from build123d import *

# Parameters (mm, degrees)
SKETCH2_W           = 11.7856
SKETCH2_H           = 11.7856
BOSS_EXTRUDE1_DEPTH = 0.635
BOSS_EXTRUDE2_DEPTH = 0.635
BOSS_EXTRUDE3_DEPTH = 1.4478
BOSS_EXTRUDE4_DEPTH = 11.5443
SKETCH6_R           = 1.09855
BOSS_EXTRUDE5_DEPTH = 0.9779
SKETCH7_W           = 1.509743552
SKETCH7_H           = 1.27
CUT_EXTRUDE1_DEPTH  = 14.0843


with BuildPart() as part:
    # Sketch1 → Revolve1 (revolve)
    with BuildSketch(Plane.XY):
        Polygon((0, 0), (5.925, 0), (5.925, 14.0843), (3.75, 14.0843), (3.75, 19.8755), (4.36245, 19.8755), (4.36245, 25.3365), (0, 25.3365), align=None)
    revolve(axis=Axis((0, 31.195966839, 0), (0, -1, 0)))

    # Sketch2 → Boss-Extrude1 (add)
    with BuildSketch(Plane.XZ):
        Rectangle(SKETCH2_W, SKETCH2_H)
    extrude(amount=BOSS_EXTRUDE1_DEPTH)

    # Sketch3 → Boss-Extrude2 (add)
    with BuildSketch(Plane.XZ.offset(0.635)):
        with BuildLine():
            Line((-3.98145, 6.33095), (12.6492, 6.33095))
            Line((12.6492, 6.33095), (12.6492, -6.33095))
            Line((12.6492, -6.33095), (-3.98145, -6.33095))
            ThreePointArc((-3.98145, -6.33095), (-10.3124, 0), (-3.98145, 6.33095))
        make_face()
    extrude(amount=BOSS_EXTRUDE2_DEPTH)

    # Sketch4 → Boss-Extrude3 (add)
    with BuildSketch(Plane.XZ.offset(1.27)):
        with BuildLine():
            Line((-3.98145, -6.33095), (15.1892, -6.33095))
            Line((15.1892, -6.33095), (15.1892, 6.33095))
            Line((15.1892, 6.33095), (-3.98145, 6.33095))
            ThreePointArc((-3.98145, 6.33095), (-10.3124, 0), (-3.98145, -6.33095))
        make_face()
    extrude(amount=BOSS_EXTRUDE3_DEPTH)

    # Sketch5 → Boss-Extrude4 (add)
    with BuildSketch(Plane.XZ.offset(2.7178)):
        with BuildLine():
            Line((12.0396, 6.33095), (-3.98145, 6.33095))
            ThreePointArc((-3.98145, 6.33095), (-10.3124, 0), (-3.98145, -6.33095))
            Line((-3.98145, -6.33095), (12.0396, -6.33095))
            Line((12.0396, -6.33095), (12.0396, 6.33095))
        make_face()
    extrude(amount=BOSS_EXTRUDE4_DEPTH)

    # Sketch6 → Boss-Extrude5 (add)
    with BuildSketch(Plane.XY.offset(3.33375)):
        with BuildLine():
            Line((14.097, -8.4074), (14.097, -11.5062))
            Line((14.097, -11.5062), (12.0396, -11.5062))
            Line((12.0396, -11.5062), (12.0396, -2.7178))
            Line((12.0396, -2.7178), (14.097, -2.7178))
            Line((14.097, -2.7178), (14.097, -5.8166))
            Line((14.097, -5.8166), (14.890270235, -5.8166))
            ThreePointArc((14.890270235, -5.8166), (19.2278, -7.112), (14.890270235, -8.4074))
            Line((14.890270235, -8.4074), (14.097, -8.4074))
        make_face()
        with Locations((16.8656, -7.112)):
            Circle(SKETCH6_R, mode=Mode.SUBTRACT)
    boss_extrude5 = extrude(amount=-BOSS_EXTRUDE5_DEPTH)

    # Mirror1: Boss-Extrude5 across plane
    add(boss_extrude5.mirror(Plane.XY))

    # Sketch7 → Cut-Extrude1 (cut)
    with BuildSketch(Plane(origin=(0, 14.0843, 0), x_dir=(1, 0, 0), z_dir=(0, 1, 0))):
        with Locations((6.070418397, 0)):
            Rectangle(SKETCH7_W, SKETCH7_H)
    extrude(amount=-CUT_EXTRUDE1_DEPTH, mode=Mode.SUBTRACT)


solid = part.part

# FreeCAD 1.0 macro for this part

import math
import FreeCAD as App
import Part
import Sketcher
Q = App.Units.Quantity

doc = App.newDocument("Part")
body = doc.addObject("PartDesign::Body", "Body")

# Sketch on XY plane
sketch1 = doc.addObject("Sketcher::SketchObject", "Sketch")
body.addObject(sketch1)
sketch1.AttachmentSupport = (doc.XY_Plane, [""])
sketch1.MapMode = "FlatFace"
sketch1.addGeometry(Part.LineSegment(App.Vector(0, 0, 0), App.Vector(5.9, 0, 0)), False)
sketch1.addGeometry(Part.LineSegment(App.Vector(5.9, 0, 0), App.Vector(5.9, 14.1, 0)), False)
sketch1.addGeometry(Part.LineSegment(App.Vector(5.9, 14.1, 0), App.Vector(3.8, 14.1, 0)), False)
sketch1.addGeometry(Part.LineSegment(App.Vector(3.8, 14.1, 0), App.Vector(3.8, 19.9, 0)), False)
sketch1.addGeometry(Part.LineSegment(App.Vector(3.8, 19.9, 0), App.Vector(4.4, 19.9, 0)), False)
sketch1.addGeometry(Part.LineSegment(App.Vector(4.4, 19.9, 0), App.Vector(4.4, 25.3, 0)), False)
sketch1.addGeometry(Part.LineSegment(App.Vector(4.4, 25.3, 0), App.Vector(0, 25.3, 0)), False)
sketch1.addGeometry(Part.LineSegment(App.Vector(0, 25.3, 0), App.Vector(0, 0, 0)), False)
sketch1.addConstraint(Sketcher.Constraint("Coincident", 0, 2, 1, 1))
sketch1.addConstraint(Sketcher.Constraint("Coincident", 1, 2, 2, 1))
sketch1.addConstraint(Sketcher.Constraint("Coincident", 2, 2, 3, 1))
sketch1.addConstraint(Sketcher.Constraint("Coincident", 3, 2, 4, 1))
sketch1.addConstraint(Sketcher.Constraint("Coincident", 4, 2, 5, 1))
sketch1.addConstraint(Sketcher.Constraint("Coincident", 5, 2, 6, 1))
sketch1.addConstraint(Sketcher.Constraint("Coincident", 6, 2, 7, 1))
sketch1.addConstraint(Sketcher.Constraint("Coincident", 7, 2, 0, 1))
sketch1.addConstraint(Sketcher.Constraint("Horizontal", 0))
sketch1.addConstraint(Sketcher.Constraint("Vertical", 1))
sketch1.addConstraint(Sketcher.Constraint("Horizontal", 2))
sketch1.addConstraint(Sketcher.Constraint("Vertical", 3))
sketch1.addConstraint(Sketcher.Constraint("Horizontal", 4))
sketch1.addConstraint(Sketcher.Constraint("Vertical", 5))
sketch1.addConstraint(Sketcher.Constraint("Horizontal", 6))
sketch1.addConstraint(Sketcher.Constraint("Vertical", 7))
sketch1.addConstraint(Sketcher.Constraint("Coincident", 7, 2, -1, 1))
sketch1.addConstraint(Sketcher.Constraint("DistanceY", 3, 1, 3, 2, Q("0.228 in")))
sketch1.addConstraint(Sketcher.Constraint("DistanceY", 5, 1, 5, 2, Q("0.215 in")))
sketch1.addConstraint(Sketcher.Constraint("DistanceY", 1, 1, 1, 2, Q("0.5545 in")))
sketch1.addConstraint(Sketcher.Constraint("DistanceX", 0, 1, 0, 2, Q("5.925 mm")))
sketch1.addConstraint(Sketcher.Constraint("DistanceX", 2, 2, 2, 1, Q("2.175 mm")))
sketch1.addConstraint(Sketcher.Constraint("DistanceX", 4, 1, 4, 2, Q("0.61245 mm")))
revolution = doc.addObject("PartDesign::Revolution", "Revolution")
body.addObject(revolution)
revolution.Profile = sketch1
revolution.ReferenceAxis = (sketch1, ["V_Axis"])
revolution.Angle = 360

# Sketch on XZ plane
sketch2 = doc.addObject("Sketcher::SketchObject", "Sketch001")
body.addObject(sketch2)
sketch2.AttachmentSupport = (doc.XZ_Plane, [""])
sketch2.MapMode = "FlatFace"
sketch2.addGeometry(Part.LineSegment(App.Vector(-6, 6, 0), App.Vector(-6, -6, 0)), False)
sketch2.addGeometry(Part.LineSegment(App.Vector(-6, -6, 0), App.Vector(6, -6, 0)), False)
sketch2.addGeometry(Part.LineSegment(App.Vector(6, -6, 0), App.Vector(6, 6, 0)), False)
sketch2.addGeometry(Part.LineSegment(App.Vector(6, 6, 0), App.Vector(-6, 6, 0)), False)
sketch2.addConstraint(Sketcher.Constraint("Coincident", 0, 2, 1, 1))
sketch2.addConstraint(Sketcher.Constraint("Coincident", 1, 2, 2, 1))
sketch2.addConstraint(Sketcher.Constraint("Coincident", 2, 2, 3, 1))
sketch2.addConstraint(Sketcher.Constraint("Coincident", 3, 2, 0, 1))
sketch2.addConstraint(Sketcher.Constraint("Vertical", 0))
sketch2.addConstraint(Sketcher.Constraint("Horizontal", 1))
sketch2.addConstraint(Sketcher.Constraint("Vertical", 2))
sketch2.addConstraint(Sketcher.Constraint("Horizontal", 3))
sketch2.addConstraint(Sketcher.Constraint("Symmetric", 0, 2, 2, 2, -1, 1))
sketch2.addConstraint(Sketcher.Constraint("Equal", 3, 0))
sketch2.addConstraint(Sketcher.Constraint("DistanceX", 1, 1, 1, 2, Q("0.464 in")))
pad1 = doc.addObject("PartDesign::Pad", "Pad")
body.addObject(pad1)
pad1.Profile = sketch2
pad1.Length = Q("0.025 in")

# Sketch on XZ plane
sketch3 = doc.addObject("Sketcher::SketchObject", "Sketch002")
body.addObject(sketch3)
sketch3.AttachmentSupport = (doc.XZ_Plane, [""])
sketch3.MapMode = "FlatFace"
sketch3.AttachmentOffset = App.Placement(App.Vector(0, 0, 0.025 * 25.4), App.Rotation())
sketch3.addGeometry(Part.LineSegment(App.Vector(13, 6, 0), App.Vector(-4, 6, 0)), False)
sketch3.addGeometry(Part.ArcOfCircle(Part.Circle(App.Vector(-4, 0, 0), App.Vector(0, 0, 1), 6), math.radians(90), math.radians(270)), False)
sketch3.addGeometry(Part.LineSegment(App.Vector(-4, -6, 0), App.Vector(13, -6, 0)), False)
sketch3.addGeometry(Part.LineSegment(App.Vector(13, -6, 0), App.Vector(13, 6, 0)), False)
sketch3.addConstraint(Sketcher.Constraint("Tangent", 0, 2, 1, 1))
sketch3.addConstraint(Sketcher.Constraint("Tangent", 1, 2, 2, 1))
sketch3.addConstraint(Sketcher.Constraint("Coincident", 2, 2, 3, 1))
sketch3.addConstraint(Sketcher.Constraint("Coincident", 3, 2, 0, 1))
sketch3.addConstraint(Sketcher.Constraint("Horizontal", 0))
sketch3.addConstraint(Sketcher.Constraint("Horizontal", 2))
sketch3.addConstraint(Sketcher.Constraint("Vertical", 3))
sketch3.addConstraint(Sketcher.Constraint("PointOnObject", 1, 3, -1))
sketch3.addConstraint(Sketcher.Constraint("DistanceY", 3, 1, 3, 2, Q("0.4985 in")))
sketch3.addConstraint(Sketcher.Constraint("DistanceX", -1, 1, 2, 2, Q("0.498 in")))
sketch3.addConstraint(Sketcher.Constraint("DistanceX", 0, 2, 0, 1, Q("16.63065 mm")))
pad2 = doc.addObject("PartDesign::Pad", "Pad001")
body.addObject(pad2)
pad2.Profile = sketch3
pad2.Length = Q("0.025 in")

# Sketch on XZ plane
sketch4 = doc.addObject("Sketcher::SketchObject", "Sketch003")
body.addObject(sketch4)
sketch4.AttachmentSupport = (doc.XZ_Plane, [""])
sketch4.MapMode = "FlatFace"
sketch4.AttachmentOffset = App.Placement(App.Vector(0, 0, 0.05 * 25.4), App.Rotation())
sketch4.addGeometry(Part.LineSegment(App.Vector(-4, -6, 0), App.Vector(15, -6, 0)), False)
sketch4.addGeometry(Part.LineSegment(App.Vector(15, -6, 0), App.Vector(15, 6, 0)), False)
sketch4.addGeometry(Part.LineSegment(App.Vector(15, 6, 0), App.Vector(-4, 6, 0)), False)
sketch4.addGeometry(Part.ArcOfCircle(Part.Circle(App.Vector(-4, 0, 0), App.Vector(0, 0, 1), 6), math.radians(90), math.radians(270)), False)
sketch4.addConstraint(Sketcher.Constraint("Coincident", 0, 2, 1, 1))
sketch4.addConstraint(Sketcher.Constraint("Coincident", 1, 2, 2, 1))
sketch4.addConstraint(Sketcher.Constraint("Tangent", 2, 2, 3, 1))
sketch4.addConstraint(Sketcher.Constraint("Tangent", 3, 2, 0, 1))
sketch4.addConstraint(Sketcher.Constraint("Horizontal", 0))
sketch4.addConstraint(Sketcher.Constraint("Vertical", 1))
sketch4.addConstraint(Sketcher.Constraint("Horizontal", 2))
sketch4.addConstraint(Sketcher.Constraint("PointOnObject", 3, 3, -1))
sketch4.addConstraint(Sketcher.Constraint("DistanceY", 1, 1, 1, 2, Q("0.4985 in")))
sketch4.addConstraint(Sketcher.Constraint("DistanceX", -1, 1, 0, 2, Q("0.598 in")))
sketch4.addConstraint(Sketcher.Constraint("DistanceX", 0, 1, 0, 2, Q("19.17065 mm")))
pad3 = doc.addObject("PartDesign::Pad", "Pad002")
body.addObject(pad3)
pad3.Profile = sketch4
pad3.Length = Q("0.057 in")

# Sketch on XZ plane
sketch5 = doc.addObject("Sketcher::SketchObject", "Sketch004")
body.addObject(sketch5)
sketch5.AttachmentSupport = (doc.XZ_Plane, [""])
sketch5.MapMode = "FlatFace"
sketch5.AttachmentOffset = App.Placement(App.Vector(0, 0, 0.107 * 25.4), App.Rotation())
sketch5.addGeometry(Part.LineSegment(App.Vector(12, 6, 0), App.Vector(-4, 6, 0)), False)
sketch5.addGeometry(Part.ArcOfCircle(Part.Circle(App.Vector(-4, 0, 0), App.Vector(0, 0, 1), 6), math.radians(90), math.radians(270)), False)
sketch5.addGeometry(Part.LineSegment(App.Vector(-4, -6, 0), App.Vector(12, -6, 0)), False)
sketch5.addGeometry(Part.LineSegment(App.Vector(12, -6, 0), App.Vector(12, 6, 0)), False)
sketch5.addConstraint(Sketcher.Constraint("Tangent", 0, 2, 1, 1))
sketch5.addConstraint(Sketcher.Constraint("Tangent", 1, 2, 2, 1))
sketch5.addConstraint(Sketcher.Constraint("Coincident", 2, 2, 3, 1))
sketch5.addConstraint(Sketcher.Constraint("Coincident", 3, 2, 0, 1))
sketch5.addConstraint(Sketcher.Constraint("Horizontal", 0))
sketch5.addConstraint(Sketcher.Constraint("Horizontal", 2))
sketch5.addConstraint(Sketcher.Constraint("Vertical", 3))
sketch5.addConstraint(Sketcher.Constraint("PointOnObject", 1, 3, -1))
sketch5.addConstraint(Sketcher.Constraint("DistanceY", 3, 1, 3, 2, Q("0.4985 in")))
sketch5.addConstraint(Sketcher.Constraint("DistanceX", -1, 1, 2, 2, Q("0.474 in")))
sketch5.addConstraint(Sketcher.Constraint("DistanceX", 0, 2, 0, 1, Q("16.02105 mm")))
pad4 = doc.addObject("PartDesign::Pad", "Pad003")
body.addObject(pad4)
pad4.Profile = sketch5
pad4.Length = Q("0.4545 in")

# Sketch on XY plane
sketch6 = doc.addObject("Sketcher::SketchObject", "Sketch005")
body.addObject(sketch6)
sketch6.AttachmentSupport = (doc.XY_Plane, [""])
sketch6.MapMode = "FlatFace"
sketch6.AttachmentOffset = App.Placement(App.Vector(0, 0, 3.33375), App.Rotation())
sketch6.addGeometry(Part.LineSegment(App.Vector(14.1, -11.5, 0), App.Vector(14.1, -8.4, 0)), False)
sketch6.addGeometry(Part.LineSegment(App.Vector(14.1, -8.4, 0), App.Vector(14.9, -8.4, 0)), False)
sketch6.addGeometry(Part.ArcOfCircle(Part.Circle(App.Vector(16.9, -7.1, 0), App.Vector(0, 0, 1), 2.4), math.radians(-147), math.radians(147)), False)
sketch6.addGeometry(Part.LineSegment(App.Vector(14.9, -5.8, 0), App.Vector(14.1, -5.8, 0)), False)
sketch6.addGeometry(Part.LineSegment(App.Vector(14.1, -5.8, 0), App.Vector(14.1, -2.7, 0)), False)
sketch6.addGeometry(Part.LineSegment(App.Vector(14.1, -2.7, 0), App.Vector(12, -2.7, 0)), False)
sketch6.addGeometry(Part.LineSegment(App.Vector(12, -2.7, 0), App.Vector(12, -11.5, 0)), False)
sketch6.addGeometry(Part.LineSegment(App.Vector(12, -11.5, 0), App.Vector(14.1, -11.5, 0)), False)
sketch6.addGeometry(Part.Circle(App.Vector(16.9, -7.1, 0), App.Vector(0, 0, 1), 1.1), False)
sketch6.addConstraint(Sketcher.Constraint("Coincident", 0, 2, 1, 1))
sketch6.addConstraint(Sketcher.Constraint("Coincident", 1, 2, 2, 1))
sketch6.addConstraint(Sketcher.Constraint("Coincident", 2, 2, 3, 1))
sketch6.addConstraint(Sketcher.Constraint("Coincident", 3, 2, 4, 1))
sketch6.addConstraint(Sketcher.Constraint("Coincident", 4, 2, 5, 1))
sketch6.addConstraint(Sketcher.Constraint("Coincident", 5, 2, 6, 1))
sketch6.addConstraint(Sketcher.Constraint("Coincident", 6, 2, 7, 1))
sketch6.addConstraint(Sketcher.Constraint("Coincident", 7, 2, 0, 1))
sketch6.addConstraint(Sketcher.Constraint("Vertical", 0))
sketch6.addConstraint(Sketcher.Constraint("Horizontal", 1))
sketch6.addConstraint(Sketcher.Constraint("Horizontal", 3))
sketch6.addConstraint(Sketcher.Constraint("Vertical", 4))
sketch6.addConstraint(Sketcher.Constraint("Horizontal", 5))
sketch6.addConstraint(Sketcher.Constraint("Vertical", 6))
sketch6.addConstraint(Sketcher.Constraint("Horizontal", 7))
sketch6.addConstraint(Sketcher.Constraint("Coincident", 8, 3, 2, 3))
sketch6.addConstraint(Sketcher.Constraint("Vertical", 1, 2, 2, 2))
sketch6.addConstraint(Sketcher.Constraint("Vertical", 0, 2, 3, 2))
sketch6.addConstraint(Sketcher.Constraint("Equal", 0, 4))
sketch6.addConstraint(Sketcher.Constraint("Radius", 2, Q("0.093 in")))
sketch6.addConstraint(Sketcher.Constraint("Diameter", 8, Q("0.0865 in")))
sketch6.addConstraint(Sketcher.Constraint("DistanceX", 5, 2, 5, 1, Q("0.081 in")))
sketch6.addConstraint(Sketcher.Constraint("DistanceY", 0, 1, 0, 2, Q("0.122 in")))
sketch6.addConstraint(Sketcher.Constraint("DistanceY", 6, 2, 6, 1, Q("0.346 in")))
sketch6.addConstraint(Sketcher.Constraint("DistanceY", 2, 3, -1, 1, Q("0.28 in")))
sketch6.addConstraint(Sketcher.Constraint("DistanceX", 6, 2, 2, 3, Q("0.19 in")))
sketch6.addConstraint(Sketcher.Constraint("DistanceX", -1, 1, 2, 3, Q("0.664 in")))
pad5 = doc.addObject("PartDesign::Pad", "Pad004")
body.addObject(pad5)
pad5.Profile = sketch6
pad5.Length = Q("0.0385 in")
pad5.Reversed = True
doc.recompute()

mirrored = doc.addObject("PartDesign::Mirrored", "Mirrored")
body.addObject(mirrored)
mirrored.Originals = [pad5]
mirrored.MirrorPlane = (doc.XY_Plane, [""])
body.Tip = mirrored

# Sketch on XZ plane
sketch7 = doc.addObject("Sketcher::SketchObject", "Sketch006")
body.addObject(sketch7)
sketch7.AttachmentSupport = (doc.XZ_Plane, [""])
sketch7.MapMode = "FlatFace"
sketch7.AttachmentOffset = App.Placement(App.Vector(0, 0, -0.5545 * 25.4), App.Rotation())
sketch7.addGeometry(Part.LineSegment(App.Vector(5.3, -0.6, 0), App.Vector(5.3, 0.6, 0)), False)
sketch7.addGeometry(Part.LineSegment(App.Vector(5.3, 0.6, 0), App.Vector(6.8, 0.6, 0)), False)
sketch7.addGeometry(Part.LineSegment(App.Vector(6.8, 0.6, 0), App.Vector(6.8, -0.6, 0)), False)
sketch7.addGeometry(Part.LineSegment(App.Vector(6.8, -0.6, 0), App.Vector(5.3, -0.6, 0)), False)
sketch7.addConstraint(Sketcher.Constraint("Coincident", 0, 2, 1, 1))
sketch7.addConstraint(Sketcher.Constraint("Coincident", 1, 2, 2, 1))
sketch7.addConstraint(Sketcher.Constraint("Coincident", 2, 2, 3, 1))
sketch7.addConstraint(Sketcher.Constraint("Coincident", 3, 2, 0, 1))
sketch7.addConstraint(Sketcher.Constraint("Vertical", 0))
sketch7.addConstraint(Sketcher.Constraint("Horizontal", 1))
sketch7.addConstraint(Sketcher.Constraint("Vertical", 2))
sketch7.addConstraint(Sketcher.Constraint("Horizontal", 3))
sketch7.addConstraint(Sketcher.Constraint("DistanceY", 0, 1, 0, 2, Q("0.05 in")))
sketch7.addConstraint(Sketcher.Constraint("DistanceY", -1, 1, 0, 2, Q("0.025 in")))
sketch7.addConstraint(Sketcher.Constraint("DistanceX", 1, 1, 1, 2, Q("1.509744 mm")))
sketch7.addConstraint(Sketcher.Constraint("DistanceX", -1, 1, 1, 2, Q("6.82529 mm")))
pocket1 = doc.addObject("PartDesign::Pocket", "Pocket")
body.addObject(pocket1)
pocket1.Profile = sketch7
pocket1.Length = Q("0.5545 in")
pocket1.Reversed = True

doc.recompute()
